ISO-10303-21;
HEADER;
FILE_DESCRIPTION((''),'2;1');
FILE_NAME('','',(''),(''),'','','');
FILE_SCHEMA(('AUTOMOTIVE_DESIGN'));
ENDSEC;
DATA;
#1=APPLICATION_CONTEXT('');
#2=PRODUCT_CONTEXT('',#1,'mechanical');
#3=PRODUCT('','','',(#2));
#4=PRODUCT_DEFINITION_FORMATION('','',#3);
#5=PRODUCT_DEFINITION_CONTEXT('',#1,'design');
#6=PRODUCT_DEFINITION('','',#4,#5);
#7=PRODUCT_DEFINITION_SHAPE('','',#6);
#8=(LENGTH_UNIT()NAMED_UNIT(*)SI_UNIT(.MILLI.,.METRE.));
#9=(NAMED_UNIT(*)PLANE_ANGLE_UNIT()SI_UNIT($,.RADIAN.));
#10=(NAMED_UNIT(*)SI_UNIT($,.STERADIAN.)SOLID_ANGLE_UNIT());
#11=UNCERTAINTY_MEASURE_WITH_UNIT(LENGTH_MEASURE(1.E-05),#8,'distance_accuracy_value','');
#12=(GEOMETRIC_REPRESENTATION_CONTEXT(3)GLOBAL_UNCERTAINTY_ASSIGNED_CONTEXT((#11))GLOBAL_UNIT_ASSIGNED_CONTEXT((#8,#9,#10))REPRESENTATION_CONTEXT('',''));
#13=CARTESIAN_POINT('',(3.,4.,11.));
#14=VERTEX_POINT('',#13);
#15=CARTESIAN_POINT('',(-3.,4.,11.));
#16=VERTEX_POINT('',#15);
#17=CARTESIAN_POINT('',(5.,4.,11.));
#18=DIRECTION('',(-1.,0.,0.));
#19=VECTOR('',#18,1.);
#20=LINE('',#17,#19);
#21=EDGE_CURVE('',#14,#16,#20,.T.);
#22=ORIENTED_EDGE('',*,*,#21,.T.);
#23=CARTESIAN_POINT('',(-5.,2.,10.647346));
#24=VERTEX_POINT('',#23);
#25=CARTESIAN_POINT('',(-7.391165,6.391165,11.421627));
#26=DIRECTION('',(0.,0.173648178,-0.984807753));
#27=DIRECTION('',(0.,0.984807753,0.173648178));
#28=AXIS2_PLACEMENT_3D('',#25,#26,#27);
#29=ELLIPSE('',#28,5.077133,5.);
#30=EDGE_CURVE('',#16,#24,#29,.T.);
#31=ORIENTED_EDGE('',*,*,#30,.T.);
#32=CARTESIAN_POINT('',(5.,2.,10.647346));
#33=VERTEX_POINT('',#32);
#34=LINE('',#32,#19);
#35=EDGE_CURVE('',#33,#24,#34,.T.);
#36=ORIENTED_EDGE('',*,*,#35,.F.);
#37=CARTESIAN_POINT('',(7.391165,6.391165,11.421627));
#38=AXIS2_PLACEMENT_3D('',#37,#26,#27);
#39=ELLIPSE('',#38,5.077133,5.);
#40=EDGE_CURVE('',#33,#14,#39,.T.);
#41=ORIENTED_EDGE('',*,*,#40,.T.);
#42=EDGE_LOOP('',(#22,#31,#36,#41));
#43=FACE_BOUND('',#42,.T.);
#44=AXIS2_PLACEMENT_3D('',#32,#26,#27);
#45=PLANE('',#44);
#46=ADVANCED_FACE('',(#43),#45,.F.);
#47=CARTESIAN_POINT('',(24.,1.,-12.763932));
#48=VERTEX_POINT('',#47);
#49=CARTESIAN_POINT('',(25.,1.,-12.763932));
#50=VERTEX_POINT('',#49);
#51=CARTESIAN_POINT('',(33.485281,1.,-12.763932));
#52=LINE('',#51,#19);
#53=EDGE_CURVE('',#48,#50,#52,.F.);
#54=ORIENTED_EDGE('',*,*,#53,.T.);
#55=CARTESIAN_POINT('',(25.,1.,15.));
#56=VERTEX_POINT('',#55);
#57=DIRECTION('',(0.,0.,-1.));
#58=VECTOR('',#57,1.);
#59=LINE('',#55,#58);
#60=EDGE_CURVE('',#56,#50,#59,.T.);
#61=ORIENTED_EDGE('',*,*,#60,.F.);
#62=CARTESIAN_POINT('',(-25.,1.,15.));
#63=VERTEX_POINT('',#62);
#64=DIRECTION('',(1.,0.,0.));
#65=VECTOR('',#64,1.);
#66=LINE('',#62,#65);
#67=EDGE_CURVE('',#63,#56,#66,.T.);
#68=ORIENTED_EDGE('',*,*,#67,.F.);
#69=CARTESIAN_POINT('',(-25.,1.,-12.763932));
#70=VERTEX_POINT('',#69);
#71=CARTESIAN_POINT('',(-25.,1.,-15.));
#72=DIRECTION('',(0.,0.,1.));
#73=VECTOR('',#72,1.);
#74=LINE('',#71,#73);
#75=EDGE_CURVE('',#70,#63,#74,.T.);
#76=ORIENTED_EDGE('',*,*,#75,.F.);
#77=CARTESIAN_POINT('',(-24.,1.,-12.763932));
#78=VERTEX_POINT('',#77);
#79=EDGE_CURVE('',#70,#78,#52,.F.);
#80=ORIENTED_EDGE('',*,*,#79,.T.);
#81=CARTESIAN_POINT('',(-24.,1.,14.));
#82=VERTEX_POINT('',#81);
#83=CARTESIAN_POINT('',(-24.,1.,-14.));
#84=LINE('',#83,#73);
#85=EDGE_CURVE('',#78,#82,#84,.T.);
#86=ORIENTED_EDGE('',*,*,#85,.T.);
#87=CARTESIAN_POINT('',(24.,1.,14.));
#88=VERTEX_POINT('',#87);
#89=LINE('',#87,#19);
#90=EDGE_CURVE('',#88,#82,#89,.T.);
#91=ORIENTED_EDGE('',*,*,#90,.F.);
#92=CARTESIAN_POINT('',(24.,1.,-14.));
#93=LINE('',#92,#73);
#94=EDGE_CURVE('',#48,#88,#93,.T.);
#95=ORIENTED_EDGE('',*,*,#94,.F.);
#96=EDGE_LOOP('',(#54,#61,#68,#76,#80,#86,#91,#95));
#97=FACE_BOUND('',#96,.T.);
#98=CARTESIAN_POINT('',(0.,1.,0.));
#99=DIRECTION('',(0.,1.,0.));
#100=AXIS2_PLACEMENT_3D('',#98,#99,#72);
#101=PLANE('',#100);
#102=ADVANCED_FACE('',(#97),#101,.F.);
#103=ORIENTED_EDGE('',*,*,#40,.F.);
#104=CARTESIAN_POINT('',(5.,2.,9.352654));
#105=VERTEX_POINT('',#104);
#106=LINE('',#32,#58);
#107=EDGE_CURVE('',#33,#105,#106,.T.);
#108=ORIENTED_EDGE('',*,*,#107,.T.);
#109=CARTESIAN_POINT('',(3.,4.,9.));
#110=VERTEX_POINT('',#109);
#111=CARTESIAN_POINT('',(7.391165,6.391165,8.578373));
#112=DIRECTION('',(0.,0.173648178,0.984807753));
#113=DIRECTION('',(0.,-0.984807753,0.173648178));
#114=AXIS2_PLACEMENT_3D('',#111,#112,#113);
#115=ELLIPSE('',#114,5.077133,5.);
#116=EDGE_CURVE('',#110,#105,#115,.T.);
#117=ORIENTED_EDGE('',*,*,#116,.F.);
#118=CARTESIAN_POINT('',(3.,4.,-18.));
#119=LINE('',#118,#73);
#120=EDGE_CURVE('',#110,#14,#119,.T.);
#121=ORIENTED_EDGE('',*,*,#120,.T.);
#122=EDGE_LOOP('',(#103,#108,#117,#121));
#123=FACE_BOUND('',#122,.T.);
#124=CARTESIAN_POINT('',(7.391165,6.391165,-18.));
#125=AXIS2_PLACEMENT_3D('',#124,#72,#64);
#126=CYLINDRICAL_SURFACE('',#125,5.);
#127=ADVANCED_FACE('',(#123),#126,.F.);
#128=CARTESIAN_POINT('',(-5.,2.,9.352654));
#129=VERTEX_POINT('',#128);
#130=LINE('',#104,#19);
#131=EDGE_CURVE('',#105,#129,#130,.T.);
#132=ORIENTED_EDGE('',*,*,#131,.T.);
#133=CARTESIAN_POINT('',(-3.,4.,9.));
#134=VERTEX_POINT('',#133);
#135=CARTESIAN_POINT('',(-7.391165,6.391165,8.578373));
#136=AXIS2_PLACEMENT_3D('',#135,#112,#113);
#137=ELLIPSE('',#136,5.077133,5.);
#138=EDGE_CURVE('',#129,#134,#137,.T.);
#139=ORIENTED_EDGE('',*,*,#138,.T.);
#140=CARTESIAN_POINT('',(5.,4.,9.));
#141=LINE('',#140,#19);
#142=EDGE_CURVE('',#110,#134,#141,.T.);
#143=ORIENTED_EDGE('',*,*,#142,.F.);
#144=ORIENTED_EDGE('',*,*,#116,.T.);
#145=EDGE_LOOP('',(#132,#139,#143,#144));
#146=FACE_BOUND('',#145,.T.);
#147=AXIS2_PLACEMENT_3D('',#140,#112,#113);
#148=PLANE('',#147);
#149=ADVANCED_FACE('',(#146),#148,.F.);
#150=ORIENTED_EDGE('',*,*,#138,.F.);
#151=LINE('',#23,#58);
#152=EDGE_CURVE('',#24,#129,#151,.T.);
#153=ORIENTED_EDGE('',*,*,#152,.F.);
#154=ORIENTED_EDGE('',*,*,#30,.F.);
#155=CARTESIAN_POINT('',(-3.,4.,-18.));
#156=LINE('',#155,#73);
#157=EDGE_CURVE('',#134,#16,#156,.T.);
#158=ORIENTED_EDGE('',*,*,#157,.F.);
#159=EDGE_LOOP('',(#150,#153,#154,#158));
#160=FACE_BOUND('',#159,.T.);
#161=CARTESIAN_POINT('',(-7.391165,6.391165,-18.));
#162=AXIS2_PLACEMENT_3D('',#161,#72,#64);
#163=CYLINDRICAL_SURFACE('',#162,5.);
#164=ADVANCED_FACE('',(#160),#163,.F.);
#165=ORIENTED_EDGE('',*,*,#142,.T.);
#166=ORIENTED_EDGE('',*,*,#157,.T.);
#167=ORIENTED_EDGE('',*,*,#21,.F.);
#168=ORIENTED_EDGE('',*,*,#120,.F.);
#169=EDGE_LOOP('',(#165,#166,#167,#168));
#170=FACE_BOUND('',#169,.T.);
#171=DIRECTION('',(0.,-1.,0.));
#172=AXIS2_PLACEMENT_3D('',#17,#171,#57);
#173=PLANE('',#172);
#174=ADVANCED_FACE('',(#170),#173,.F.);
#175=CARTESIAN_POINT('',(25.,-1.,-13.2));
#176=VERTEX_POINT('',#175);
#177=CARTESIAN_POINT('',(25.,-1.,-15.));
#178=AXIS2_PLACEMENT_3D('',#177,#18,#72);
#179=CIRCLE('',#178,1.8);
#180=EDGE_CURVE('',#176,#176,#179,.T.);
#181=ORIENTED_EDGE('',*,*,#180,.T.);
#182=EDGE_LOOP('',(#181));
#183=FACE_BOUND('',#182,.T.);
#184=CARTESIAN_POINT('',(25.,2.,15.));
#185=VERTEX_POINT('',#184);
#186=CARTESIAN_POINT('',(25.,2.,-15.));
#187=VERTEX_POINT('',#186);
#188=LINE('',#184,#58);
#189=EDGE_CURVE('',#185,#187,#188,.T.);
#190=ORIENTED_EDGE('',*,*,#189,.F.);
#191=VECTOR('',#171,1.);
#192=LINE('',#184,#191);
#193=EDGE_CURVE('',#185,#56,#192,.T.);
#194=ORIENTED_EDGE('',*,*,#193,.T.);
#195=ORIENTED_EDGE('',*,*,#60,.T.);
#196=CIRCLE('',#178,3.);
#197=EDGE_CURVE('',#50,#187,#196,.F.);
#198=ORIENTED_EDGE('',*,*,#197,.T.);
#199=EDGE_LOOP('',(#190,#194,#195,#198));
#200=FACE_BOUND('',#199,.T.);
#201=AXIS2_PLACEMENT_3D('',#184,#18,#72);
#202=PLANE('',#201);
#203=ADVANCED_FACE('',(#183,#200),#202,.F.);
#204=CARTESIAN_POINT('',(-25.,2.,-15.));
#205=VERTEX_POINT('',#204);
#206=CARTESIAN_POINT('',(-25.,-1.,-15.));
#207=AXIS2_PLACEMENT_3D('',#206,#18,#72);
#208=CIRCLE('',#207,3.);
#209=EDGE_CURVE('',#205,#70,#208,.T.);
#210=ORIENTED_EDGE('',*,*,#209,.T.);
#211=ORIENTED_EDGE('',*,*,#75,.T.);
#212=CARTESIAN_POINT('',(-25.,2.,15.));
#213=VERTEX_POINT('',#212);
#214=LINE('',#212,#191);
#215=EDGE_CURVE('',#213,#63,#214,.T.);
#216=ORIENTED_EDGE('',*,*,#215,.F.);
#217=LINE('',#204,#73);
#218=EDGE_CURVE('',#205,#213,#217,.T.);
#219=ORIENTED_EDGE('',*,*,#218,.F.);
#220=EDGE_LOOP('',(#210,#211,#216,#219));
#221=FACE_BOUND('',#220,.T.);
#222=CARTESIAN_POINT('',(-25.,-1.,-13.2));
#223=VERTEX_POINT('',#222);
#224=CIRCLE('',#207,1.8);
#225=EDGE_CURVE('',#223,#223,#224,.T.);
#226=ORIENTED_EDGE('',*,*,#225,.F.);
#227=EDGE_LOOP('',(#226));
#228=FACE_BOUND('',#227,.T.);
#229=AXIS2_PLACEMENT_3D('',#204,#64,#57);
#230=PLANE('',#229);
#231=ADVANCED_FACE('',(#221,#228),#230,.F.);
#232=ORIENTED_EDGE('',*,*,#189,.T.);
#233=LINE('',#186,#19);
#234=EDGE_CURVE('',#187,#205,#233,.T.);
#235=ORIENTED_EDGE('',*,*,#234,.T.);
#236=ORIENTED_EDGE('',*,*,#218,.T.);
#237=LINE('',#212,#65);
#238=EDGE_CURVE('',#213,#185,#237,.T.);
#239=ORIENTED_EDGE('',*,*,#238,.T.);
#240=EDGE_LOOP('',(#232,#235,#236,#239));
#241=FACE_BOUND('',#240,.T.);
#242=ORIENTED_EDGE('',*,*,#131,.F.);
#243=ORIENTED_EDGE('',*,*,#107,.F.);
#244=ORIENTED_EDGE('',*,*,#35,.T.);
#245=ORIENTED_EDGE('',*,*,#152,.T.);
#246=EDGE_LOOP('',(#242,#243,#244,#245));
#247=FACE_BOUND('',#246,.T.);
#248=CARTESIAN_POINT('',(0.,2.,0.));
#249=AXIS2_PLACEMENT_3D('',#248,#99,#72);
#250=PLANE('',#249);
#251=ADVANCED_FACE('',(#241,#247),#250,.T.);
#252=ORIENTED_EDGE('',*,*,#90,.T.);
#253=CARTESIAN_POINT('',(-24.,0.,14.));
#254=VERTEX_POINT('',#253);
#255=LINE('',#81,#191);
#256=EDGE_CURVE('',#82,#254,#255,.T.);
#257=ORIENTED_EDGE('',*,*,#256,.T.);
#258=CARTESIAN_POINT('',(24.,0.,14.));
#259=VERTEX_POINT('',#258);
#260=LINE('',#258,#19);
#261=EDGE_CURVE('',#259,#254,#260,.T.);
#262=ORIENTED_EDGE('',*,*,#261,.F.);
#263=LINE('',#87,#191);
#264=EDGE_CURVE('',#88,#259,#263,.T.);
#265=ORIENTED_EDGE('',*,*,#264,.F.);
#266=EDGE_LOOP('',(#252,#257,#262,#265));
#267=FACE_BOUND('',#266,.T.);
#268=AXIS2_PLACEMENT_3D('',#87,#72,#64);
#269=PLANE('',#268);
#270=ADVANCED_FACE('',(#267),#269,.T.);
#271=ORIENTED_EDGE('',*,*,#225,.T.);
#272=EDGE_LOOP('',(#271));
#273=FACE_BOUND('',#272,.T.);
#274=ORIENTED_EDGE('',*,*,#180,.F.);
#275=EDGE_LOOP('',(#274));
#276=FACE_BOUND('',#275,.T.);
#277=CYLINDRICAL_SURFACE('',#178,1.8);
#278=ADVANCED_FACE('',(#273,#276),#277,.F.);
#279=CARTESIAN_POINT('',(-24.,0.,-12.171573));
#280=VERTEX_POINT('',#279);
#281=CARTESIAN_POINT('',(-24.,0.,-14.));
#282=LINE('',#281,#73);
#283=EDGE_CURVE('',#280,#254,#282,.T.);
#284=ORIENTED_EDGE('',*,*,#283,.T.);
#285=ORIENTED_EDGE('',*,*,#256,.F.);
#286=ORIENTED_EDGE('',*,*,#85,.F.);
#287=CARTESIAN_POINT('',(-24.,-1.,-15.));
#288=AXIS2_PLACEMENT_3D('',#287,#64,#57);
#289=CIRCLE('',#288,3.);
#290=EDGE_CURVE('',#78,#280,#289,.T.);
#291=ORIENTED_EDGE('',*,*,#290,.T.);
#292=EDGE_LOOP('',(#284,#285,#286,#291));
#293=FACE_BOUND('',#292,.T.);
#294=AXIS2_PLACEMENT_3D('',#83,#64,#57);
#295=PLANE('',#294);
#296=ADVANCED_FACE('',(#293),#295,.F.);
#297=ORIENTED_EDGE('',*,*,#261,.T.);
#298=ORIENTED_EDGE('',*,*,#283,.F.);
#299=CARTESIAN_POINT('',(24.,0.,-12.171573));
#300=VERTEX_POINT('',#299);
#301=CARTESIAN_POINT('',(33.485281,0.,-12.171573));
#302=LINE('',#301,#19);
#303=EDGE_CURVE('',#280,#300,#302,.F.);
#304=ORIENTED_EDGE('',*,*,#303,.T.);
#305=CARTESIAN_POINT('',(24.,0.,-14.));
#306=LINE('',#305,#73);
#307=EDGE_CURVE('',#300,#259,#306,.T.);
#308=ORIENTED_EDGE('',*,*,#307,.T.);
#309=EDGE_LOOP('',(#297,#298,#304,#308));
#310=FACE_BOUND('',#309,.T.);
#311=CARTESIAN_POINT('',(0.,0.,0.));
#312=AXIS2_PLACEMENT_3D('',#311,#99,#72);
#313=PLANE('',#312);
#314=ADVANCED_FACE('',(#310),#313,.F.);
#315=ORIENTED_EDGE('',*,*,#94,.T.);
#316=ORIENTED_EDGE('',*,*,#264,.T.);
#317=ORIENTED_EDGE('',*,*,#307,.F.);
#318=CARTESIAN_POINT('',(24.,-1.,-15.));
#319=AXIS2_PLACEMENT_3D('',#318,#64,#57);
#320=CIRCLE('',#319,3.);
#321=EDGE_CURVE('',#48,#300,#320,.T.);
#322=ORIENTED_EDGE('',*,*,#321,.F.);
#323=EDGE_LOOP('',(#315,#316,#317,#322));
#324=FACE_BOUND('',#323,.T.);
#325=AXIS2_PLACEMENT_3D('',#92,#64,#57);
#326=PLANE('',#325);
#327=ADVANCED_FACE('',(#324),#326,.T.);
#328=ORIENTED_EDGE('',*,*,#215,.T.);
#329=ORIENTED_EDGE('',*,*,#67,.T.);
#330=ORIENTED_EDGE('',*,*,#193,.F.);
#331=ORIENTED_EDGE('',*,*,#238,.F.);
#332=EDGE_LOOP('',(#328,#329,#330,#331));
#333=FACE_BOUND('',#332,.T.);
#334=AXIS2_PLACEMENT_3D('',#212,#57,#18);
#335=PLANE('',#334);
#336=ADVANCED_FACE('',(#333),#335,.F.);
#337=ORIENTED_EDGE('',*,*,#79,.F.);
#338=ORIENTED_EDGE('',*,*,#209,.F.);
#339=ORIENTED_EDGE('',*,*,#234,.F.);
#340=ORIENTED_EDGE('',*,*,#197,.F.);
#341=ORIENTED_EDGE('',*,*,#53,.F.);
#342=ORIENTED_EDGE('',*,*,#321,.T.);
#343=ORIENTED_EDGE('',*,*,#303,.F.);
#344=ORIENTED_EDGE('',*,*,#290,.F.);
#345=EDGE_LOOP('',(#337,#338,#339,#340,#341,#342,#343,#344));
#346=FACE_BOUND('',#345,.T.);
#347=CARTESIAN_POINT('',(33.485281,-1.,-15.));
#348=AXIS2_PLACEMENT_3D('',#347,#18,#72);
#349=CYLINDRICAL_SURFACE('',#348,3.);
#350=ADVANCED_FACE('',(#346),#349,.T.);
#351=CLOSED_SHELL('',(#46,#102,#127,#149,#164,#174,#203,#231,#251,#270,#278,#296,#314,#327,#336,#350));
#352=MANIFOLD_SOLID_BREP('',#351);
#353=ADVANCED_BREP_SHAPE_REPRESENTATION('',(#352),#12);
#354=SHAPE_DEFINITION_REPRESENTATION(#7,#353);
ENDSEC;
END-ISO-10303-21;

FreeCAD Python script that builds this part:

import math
import FreeCAD as App
import Part
import Sketcher
Q = App.Units.Quantity

doc = App.newDocument("Part")
body = doc.addObject("PartDesign::Body", "Body")

# Sketch on XZ plane
sketch1 = body.newObject("Sketcher::SketchObject", "Sketch")
sketch1.AttachmentSupport = (doc.getObject("XZ_Plane"), [""])
sketch1.MapMode = "FlatFace"
sketch1.addGeometry([
    Part.LineSegment(App.Vector(-24, -14, 0), App.Vector(-24, 14, 0)),
    Part.LineSegment(App.Vector(-24, 14, 0), App.Vector(24, 14, 0)),
    Part.LineSegment(App.Vector(24, 14, 0), App.Vector(24, -14, 0)),
    Part.LineSegment(App.Vector(24, -14, 0), App.Vector(-24, -14, 0)),
], False)
sketch1.addConstraint([
    Sketcher.Constraint("Coincident", 0, 2, 1, 1),
    Sketcher.Constraint("Coincident", 1, 2, 2, 1),
    Sketcher.Constraint("Coincident", 2, 2, 3, 1),
    Sketcher.Constraint("Coincident", 3, 2, 0, 1),
    Sketcher.Constraint("Vertical", 0),
    Sketcher.Constraint("Horizontal", 1),
    Sketcher.Constraint("Vertical", 2),
    Sketcher.Constraint("Horizontal", 3),
    Sketcher.Constraint("Symmetric", 0, 2, 2, 2, -1, 1),
    Sketcher.Constraint("DistanceX", 1, 1, 1, 2, Q("48 mm")),
    Sketcher.Constraint("DistanceY", 0, 1, 0, 2, Q("28 mm")),
])
pad1 = body.newObject("PartDesign::Pad", "Pad")
pad1.Profile = sketch1
pad1.Length = 1
pad1.Reversed = True

# Sketch on XZ plane
sketch2 = body.newObject("Sketcher::SketchObject", "Sketch001")
sketch2.AttachmentSupport = (doc.getObject("XZ_Plane"), [""])
sketch2.MapMode = "FlatFace"
sketch2.AttachmentOffset = App.Placement(App.Vector(0, 0, -1), App.Rotation())
sketch2.addGeometry([
    Part.LineSegment(App.Vector(-25, -15, 0), App.Vector(-25, 15, 0)),
    Part.LineSegment(App.Vector(-25, 15, 0), App.Vector(25, 15, 0)),
    Part.LineSegment(App.Vector(25, 15, 0), App.Vector(25, -15, 0)),
    Part.LineSegment(App.Vector(25, -15, 0), App.Vector(-25, -15, 0)),
], False)
sketch2.addConstraint([
    Sketcher.Constraint("Coincident", 0, 2, 1, 1),
    Sketcher.Constraint("Coincident", 1, 2, 2, 1),
    Sketcher.Constraint("Coincident", 2, 2, 3, 1),
    Sketcher.Constraint("Coincident", 3, 2, 0, 1),
    Sketcher.Constraint("Vertical", 0),
    Sketcher.Constraint("Horizontal", 1),
    Sketcher.Constraint("Vertical", 2),
    Sketcher.Constraint("Horizontal", 3),
    Sketcher.Constraint("Symmetric", 0, 2, 2, 2, -1, 1),
    Sketcher.Constraint("DistanceX", 1, 1, 1, 2, Q("50 mm")),
    Sketcher.Constraint("DistanceY", 0, 1, 0, 2, Q("30 mm")),
])
pad2 = body.newObject("PartDesign::Pad", "Pad001")
pad2.Profile = sketch2
pad2.Length = 1
pad2.Reversed = True

# Sketch on YZ plane
sketch3 = body.newObject("Sketcher::SketchObject", "Sketch002")
sketch3.AttachmentSupport = (doc.getObject("YZ_Plane"), [""])
sketch3.MapMode = "FlatFace"
sketch3.AttachmentOffset = App.Placement(App.Vector(0, 0, -25), App.Rotation())
sketch3.addGeometry(Part.Circle(App.Vector(-1, -15, 0), App.Vector(0, 0, 1), 3), False)
sketch3.addConstraint([
    Sketcher.Constraint("Diameter", 0, Q("6 mm")),
    Sketcher.Constraint("DistanceX", 0, 3, -1, 1, Q("1 mm")),
    Sketcher.Constraint("DistanceY", 0, 3, -1, 1, Q("15 mm")),
])
pad3 = body.newObject("PartDesign::Pad", "Pad002")
pad3.Profile = sketch3
pad3.Length = 50

# Sketch on YZ plane
sketch4 = body.newObject("Sketcher::SketchObject", "Sketch003")
sketch4.AttachmentSupport = (doc.getObject("YZ_Plane"), [""])
sketch4.MapMode = "FlatFace"
sketch4.AttachmentOffset = App.Placement(App.Vector(0, 0, -25), App.Rotation())
sketch4.addGeometry(Part.Circle(App.Vector(-1, -15, 0), App.Vector(0, 0, 1), 1.8), False)
sketch4.addConstraint([
    Sketcher.Constraint("Diameter", 0, Q("3.6 mm")),
    Sketcher.Constraint("DistanceX", 0, 3, -1, 1, Q("1 mm")),
    Sketcher.Constraint("DistanceY", 0, 3, -1, 1, Q("15 mm")),
])
pocket1 = body.newObject("PartDesign::Pocket", "Pocket")
pocket1.Profile = sketch4
pocket1.Type = "ThroughAll"
pocket1.Reversed = True

# Sketch on YZ plane
sketch5 = body.newObject("Sketcher::SketchObject", "Sketch004")
sketch5.AttachmentSupport = (doc.getObject("YZ_Plane"), [""])
sketch5.MapMode = "FlatFace"
sketch5.addGeometry([
    Part.LineSegment(App.Vector(4, 11, 0), App.Vector(2, 10.6, 0)),
    Part.LineSegment(App.Vector(2, 10.6, 0), App.Vector(2, 9.4, 0)),
    Part.LineSegment(App.Vector(2, 9.4, 0), App.Vector(4, 9, 0)),
    Part.LineSegment(App.Vector(4, 9, 0), App.Vector(4, 11, 0)),
], False)
sketch5.addConstraint([
    Sketcher.Constraint("Coincident", 0, 2, 1, 1),
    Sketcher.Constraint("Coincident", 1, 2, 2, 1),
    Sketcher.Constraint("Coincident", 2, 2, 3, 1),
    Sketcher.Constraint("Coincident", 3, 2, 0, 1),
    Sketcher.Constraint("Vertical", 1),
    Sketcher.Constraint("Vertical", 3),
    Sketcher.Constraint("Equal", 0, 2),
    Sketcher.Constraint("DistanceY", 3, 1, 3, 2, Q("2 mm")),
    Sketcher.Constraint("Angle", 0, Q("-170 deg")),
    Sketcher.Constraint("DistanceX", -1, 1, 0, 2, Q("2 mm")),
    Sketcher.Constraint("DistanceX", -1, 1, 2, 2, Q("4 mm")),
    Sketcher.Constraint("DistanceY", -1, 1, 2, 2, Q("9 mm")),
])
pad4 = body.newObject("PartDesign::Pad", "Pad003")
pad4.Profile = sketch5
pad4.Length = 10
pad4.Midplane = True

# Sketch on XY plane
sketch6 = body.newObject("Sketcher::SketchObject", "Sketch005")
sketch6.AttachmentSupport = (doc.getObject("XY_Plane"), [""])
sketch6.MapMode = "FlatFace"
sketch6.AttachmentOffset = App.Placement(App.Vector(0, 0, 15), App.Rotation())
sketch6.addGeometry([
    Part.LineSegment(App.Vector(5, 4, 0), App.Vector(3, 4, 0)),  # 0
    Part.ArcOfCircle(Part.Circle(App.Vector(7.4, 6.4, 0), App.Vector(0, 0, 1), 5), math.radians(-151), math.radians(-119)),  # 1
    Part.LineSegment(App.Vector(5, 2, 0), App.Vector(5, 4, 0)),  # 2
    Part.LineSegment(App.Vector(-5, 4, 0), App.Vector(-5, 2, 0)),  # 3
    Part.ArcOfCircle(Part.Circle(App.Vector(-7.4, 6.4, 0), App.Vector(0, 0, 1), 5), math.radians(-61), math.radians(-29)),  # 4
    Part.LineSegment(App.Vector(-3, 4, 0), App.Vector(-5, 4, 0)),  # 5
], False)
sketch6.addConstraint([
    Sketcher.Constraint("Coincident", 0, 2, 1, 1),
    Sketcher.Constraint("Coincident", 1, 2, 2, 1),
    Sketcher.Constraint("Coincident", 2, 2, 0, 1),
    Sketcher.Constraint("Coincident", 3, 2, 4, 1),
    Sketcher.Constraint("Coincident", 4, 2, 5, 1),
    Sketcher.Constraint("Coincident", 5, 2, 3, 1),
    Sketcher.Constraint("Horizontal", 0),
    Sketcher.Constraint("Vertical", 2),
    Sketcher.Constraint("Vertical", 3),
    Sketcher.Constraint("Horizontal", 5),
    Sketcher.Constraint("Equal", 1, 4),
    Sketcher.Constraint("Symmetric", 1, 3, 4, 3, -2),
    Sketcher.Constraint("Symmetric", 2, 2, 5, 2, -2),
    Sketcher.Constraint("Equal", 5, 2),
    Sketcher.Constraint("Radius", 1, Q("5 mm")),
    Sketcher.Constraint("DistanceX", 0, 2, 0, 1, Q("2 mm")),
    Sketcher.Constraint("DistanceX", -1, 1, 0, 2, Q("3 mm")),
    Sketcher.Constraint("DistanceY", -1, 1, 0, 2, Q("4 mm")),
])
pocket2 = body.newObject("PartDesign::Pocket", "Pocket001")
pocket2.Profile = sketch6
pocket2.Type = "ThroughAll"

doc.recompute()
